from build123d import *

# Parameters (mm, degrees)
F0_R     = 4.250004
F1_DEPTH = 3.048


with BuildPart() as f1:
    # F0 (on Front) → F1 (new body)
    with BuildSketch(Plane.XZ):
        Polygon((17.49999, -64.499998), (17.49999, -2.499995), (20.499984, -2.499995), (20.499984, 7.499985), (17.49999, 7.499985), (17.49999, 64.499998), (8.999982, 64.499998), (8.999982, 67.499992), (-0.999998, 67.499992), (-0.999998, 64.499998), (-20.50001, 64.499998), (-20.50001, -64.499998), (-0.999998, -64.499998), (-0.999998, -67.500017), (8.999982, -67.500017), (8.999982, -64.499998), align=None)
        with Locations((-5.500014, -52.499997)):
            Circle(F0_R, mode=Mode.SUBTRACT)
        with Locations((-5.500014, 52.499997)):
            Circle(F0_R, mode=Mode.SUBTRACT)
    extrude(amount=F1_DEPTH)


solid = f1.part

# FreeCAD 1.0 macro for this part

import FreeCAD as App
import Part
import Sketcher

V = App.Vector
Q = App.Units.Quantity


def add_polygon(sketch, points):
    """Adds a closed chain of lines whose ends are joined by coincident constraints."""
    first, n = sketch.GeometryCount, len(points)
    for a, b in zip(points, points[1:] + points[:1]):
        sketch.addGeometry(Part.LineSegment(App.Vector(*a, 0), App.Vector(*b, 0)), False)
    for i in range(n):
        sketch.addConstraint(Sketcher.Constraint("Coincident", first + i, 2, first + (i + 1) % n, 1))

doc = App.newDocument("Part")
params = doc.addObject("Spreadsheet::Sheet", "Params")
for row, (alias, value) in enumerate([
    ("pad1_length", "0.12 in"),
], start=1):
    params.set(f"A{row}", alias)
    params.set(f"B{row}", "=" + value)
    params.setAlias(f"B{row}", alias)

body = doc.addObject("PartDesign::Body", "Body")

sketch1 = body.newObject("Sketcher::SketchObject", "Sketch")
sketch1.AttachmentSupport = (doc.getObject("XZ_Plane"), [""])
sketch1.MapMode = "FlatFace"
add_polygon(sketch1, [(17.5, -64.5), (17.5, -2.5), (20.5, -2.5), (20.5, 7.5), (17.5, 7.5), (17.5, 64.5), (9, 64.5), (9, 67.5), (-1, 67.5), (-1, 64.5), (-20.5, 64.5), (-20.5, -64.5), (-1, -64.5), (-1, -67.5), (9, -67.5), (9, -64.5)])
sketch1.addGeometry(Part.Circle(V(-5.5, -52.5, 0), V(0, 0, 1), 4.3), False)
sketch1.addGeometry(Part.Circle(V(-5.5, 52.5, 0), V(0, 0, 1), 4.3), False)
sketch1.addConstraint(Sketcher.Constraint("Vertical", 0))
sketch1.addConstraint(Sketcher.Constraint("Horizontal", 1))
sketch1.addConstraint(Sketcher.Constraint("Vertical", 2))
sketch1.addConstraint(Sketcher.Constraint("Horizontal", 3))
sketch1.addConstraint(Sketcher.Constraint("Vertical", 4))
sketch1.addConstraint(Sketcher.Constraint("Horizontal", 5))
sketch1.addConstraint(Sketcher.Constraint("Vertical", 6))
sketch1.addConstraint(Sketcher.Constraint("Horizontal", 7))
sketch1.addConstraint(Sketcher.Constraint("Vertical", 8))
sketch1.addConstraint(Sketcher.Constraint("Horizontal", 9))
sketch1.addConstraint(Sketcher.Constraint("Vertical", 10))
sketch1.addConstraint(Sketcher.Constraint("Horizontal", 11))
sketch1.addConstraint(Sketcher.Constraint("Vertical", 12))
sketch1.addConstraint(Sketcher.Constraint("Horizontal", 13))
sketch1.addConstraint(Sketcher.Constraint("Vertical", 14))
sketch1.addConstraint(Sketcher.Constraint("Horizontal", 15))
sketch1.addConstraint(Sketcher.Constraint("Equal", 16, 17))
sketch1.addConstraint(Sketcher.Constraint("Symmetric", 16, 3, 17, 3, -1))
sketch1.addConstraint(Sketcher.Constraint("Symmetric", 8, 2, 11, 2, -1))
sketch1.addConstraint(Sketcher.Constraint("Symmetric", 5, 2, 14, 2, -1))
sketch1.addConstraint(Sketcher.Constraint("Horizontal", 5, 2, 8, 2))
sketch1.addConstraint(Sketcher.Constraint("Vertical", 0, 2, 3, 2))
sketch1.addConstraint(Sketcher.Constraint("Equal", 13, 2))
sketch1.addConstraint(Sketcher.Constraint("Equal", 3, 6))
sketch1.addConstraint(Sketcher.Constraint("DistanceX", 7, 2, 7, 1, Q("0.3937 in")))
sketch1.addConstraint(Sketcher.Constraint("Diameter", 16, Q("8.500008 mm")))
sketch1.addConstraint(Sketcher.Constraint("DistanceX", 5, 2, 5, 1, Q("8.500008 mm")))
sketch1.addConstraint(Sketcher.Constraint("DistanceX", 9, 2, 9, 1, Q("19.500012 mm")))
sketch1.addConstraint(Sketcher.Constraint("DistanceY", 12, 2, 12, 1, Q("3.000019 mm")))
sketch1.addConstraint(Sketcher.Constraint("DistanceY", -1, 1, 4, 2, Q("64.499998 mm")))
sketch1.addConstraint(Sketcher.Constraint("DistanceX", 7, 2, -1, 1, Q("0.999998 mm")))
sketch1.addConstraint(Sketcher.Constraint("DistanceX", 16, 3, 1, 2, Q("25.999998 mm")))
sketch1.addConstraint(Sketcher.Constraint("DistanceY", 17, 3, 4, 2, Q("12.000001 mm")))
sketch1.addConstraint(Sketcher.Constraint("DistanceX", 1, 1, 1, 2, Q("2.999994 mm")))
sketch1.addConstraint(Sketcher.Constraint("DistanceY", 0, 1, 0, 2, Q("62.000003 mm")))
pad1 = body.newObject("PartDesign::Pad", "Pad")
pad1.Profile = sketch1
pad1.setExpression("Length", "Params.pad1_length")

doc.recompute()
